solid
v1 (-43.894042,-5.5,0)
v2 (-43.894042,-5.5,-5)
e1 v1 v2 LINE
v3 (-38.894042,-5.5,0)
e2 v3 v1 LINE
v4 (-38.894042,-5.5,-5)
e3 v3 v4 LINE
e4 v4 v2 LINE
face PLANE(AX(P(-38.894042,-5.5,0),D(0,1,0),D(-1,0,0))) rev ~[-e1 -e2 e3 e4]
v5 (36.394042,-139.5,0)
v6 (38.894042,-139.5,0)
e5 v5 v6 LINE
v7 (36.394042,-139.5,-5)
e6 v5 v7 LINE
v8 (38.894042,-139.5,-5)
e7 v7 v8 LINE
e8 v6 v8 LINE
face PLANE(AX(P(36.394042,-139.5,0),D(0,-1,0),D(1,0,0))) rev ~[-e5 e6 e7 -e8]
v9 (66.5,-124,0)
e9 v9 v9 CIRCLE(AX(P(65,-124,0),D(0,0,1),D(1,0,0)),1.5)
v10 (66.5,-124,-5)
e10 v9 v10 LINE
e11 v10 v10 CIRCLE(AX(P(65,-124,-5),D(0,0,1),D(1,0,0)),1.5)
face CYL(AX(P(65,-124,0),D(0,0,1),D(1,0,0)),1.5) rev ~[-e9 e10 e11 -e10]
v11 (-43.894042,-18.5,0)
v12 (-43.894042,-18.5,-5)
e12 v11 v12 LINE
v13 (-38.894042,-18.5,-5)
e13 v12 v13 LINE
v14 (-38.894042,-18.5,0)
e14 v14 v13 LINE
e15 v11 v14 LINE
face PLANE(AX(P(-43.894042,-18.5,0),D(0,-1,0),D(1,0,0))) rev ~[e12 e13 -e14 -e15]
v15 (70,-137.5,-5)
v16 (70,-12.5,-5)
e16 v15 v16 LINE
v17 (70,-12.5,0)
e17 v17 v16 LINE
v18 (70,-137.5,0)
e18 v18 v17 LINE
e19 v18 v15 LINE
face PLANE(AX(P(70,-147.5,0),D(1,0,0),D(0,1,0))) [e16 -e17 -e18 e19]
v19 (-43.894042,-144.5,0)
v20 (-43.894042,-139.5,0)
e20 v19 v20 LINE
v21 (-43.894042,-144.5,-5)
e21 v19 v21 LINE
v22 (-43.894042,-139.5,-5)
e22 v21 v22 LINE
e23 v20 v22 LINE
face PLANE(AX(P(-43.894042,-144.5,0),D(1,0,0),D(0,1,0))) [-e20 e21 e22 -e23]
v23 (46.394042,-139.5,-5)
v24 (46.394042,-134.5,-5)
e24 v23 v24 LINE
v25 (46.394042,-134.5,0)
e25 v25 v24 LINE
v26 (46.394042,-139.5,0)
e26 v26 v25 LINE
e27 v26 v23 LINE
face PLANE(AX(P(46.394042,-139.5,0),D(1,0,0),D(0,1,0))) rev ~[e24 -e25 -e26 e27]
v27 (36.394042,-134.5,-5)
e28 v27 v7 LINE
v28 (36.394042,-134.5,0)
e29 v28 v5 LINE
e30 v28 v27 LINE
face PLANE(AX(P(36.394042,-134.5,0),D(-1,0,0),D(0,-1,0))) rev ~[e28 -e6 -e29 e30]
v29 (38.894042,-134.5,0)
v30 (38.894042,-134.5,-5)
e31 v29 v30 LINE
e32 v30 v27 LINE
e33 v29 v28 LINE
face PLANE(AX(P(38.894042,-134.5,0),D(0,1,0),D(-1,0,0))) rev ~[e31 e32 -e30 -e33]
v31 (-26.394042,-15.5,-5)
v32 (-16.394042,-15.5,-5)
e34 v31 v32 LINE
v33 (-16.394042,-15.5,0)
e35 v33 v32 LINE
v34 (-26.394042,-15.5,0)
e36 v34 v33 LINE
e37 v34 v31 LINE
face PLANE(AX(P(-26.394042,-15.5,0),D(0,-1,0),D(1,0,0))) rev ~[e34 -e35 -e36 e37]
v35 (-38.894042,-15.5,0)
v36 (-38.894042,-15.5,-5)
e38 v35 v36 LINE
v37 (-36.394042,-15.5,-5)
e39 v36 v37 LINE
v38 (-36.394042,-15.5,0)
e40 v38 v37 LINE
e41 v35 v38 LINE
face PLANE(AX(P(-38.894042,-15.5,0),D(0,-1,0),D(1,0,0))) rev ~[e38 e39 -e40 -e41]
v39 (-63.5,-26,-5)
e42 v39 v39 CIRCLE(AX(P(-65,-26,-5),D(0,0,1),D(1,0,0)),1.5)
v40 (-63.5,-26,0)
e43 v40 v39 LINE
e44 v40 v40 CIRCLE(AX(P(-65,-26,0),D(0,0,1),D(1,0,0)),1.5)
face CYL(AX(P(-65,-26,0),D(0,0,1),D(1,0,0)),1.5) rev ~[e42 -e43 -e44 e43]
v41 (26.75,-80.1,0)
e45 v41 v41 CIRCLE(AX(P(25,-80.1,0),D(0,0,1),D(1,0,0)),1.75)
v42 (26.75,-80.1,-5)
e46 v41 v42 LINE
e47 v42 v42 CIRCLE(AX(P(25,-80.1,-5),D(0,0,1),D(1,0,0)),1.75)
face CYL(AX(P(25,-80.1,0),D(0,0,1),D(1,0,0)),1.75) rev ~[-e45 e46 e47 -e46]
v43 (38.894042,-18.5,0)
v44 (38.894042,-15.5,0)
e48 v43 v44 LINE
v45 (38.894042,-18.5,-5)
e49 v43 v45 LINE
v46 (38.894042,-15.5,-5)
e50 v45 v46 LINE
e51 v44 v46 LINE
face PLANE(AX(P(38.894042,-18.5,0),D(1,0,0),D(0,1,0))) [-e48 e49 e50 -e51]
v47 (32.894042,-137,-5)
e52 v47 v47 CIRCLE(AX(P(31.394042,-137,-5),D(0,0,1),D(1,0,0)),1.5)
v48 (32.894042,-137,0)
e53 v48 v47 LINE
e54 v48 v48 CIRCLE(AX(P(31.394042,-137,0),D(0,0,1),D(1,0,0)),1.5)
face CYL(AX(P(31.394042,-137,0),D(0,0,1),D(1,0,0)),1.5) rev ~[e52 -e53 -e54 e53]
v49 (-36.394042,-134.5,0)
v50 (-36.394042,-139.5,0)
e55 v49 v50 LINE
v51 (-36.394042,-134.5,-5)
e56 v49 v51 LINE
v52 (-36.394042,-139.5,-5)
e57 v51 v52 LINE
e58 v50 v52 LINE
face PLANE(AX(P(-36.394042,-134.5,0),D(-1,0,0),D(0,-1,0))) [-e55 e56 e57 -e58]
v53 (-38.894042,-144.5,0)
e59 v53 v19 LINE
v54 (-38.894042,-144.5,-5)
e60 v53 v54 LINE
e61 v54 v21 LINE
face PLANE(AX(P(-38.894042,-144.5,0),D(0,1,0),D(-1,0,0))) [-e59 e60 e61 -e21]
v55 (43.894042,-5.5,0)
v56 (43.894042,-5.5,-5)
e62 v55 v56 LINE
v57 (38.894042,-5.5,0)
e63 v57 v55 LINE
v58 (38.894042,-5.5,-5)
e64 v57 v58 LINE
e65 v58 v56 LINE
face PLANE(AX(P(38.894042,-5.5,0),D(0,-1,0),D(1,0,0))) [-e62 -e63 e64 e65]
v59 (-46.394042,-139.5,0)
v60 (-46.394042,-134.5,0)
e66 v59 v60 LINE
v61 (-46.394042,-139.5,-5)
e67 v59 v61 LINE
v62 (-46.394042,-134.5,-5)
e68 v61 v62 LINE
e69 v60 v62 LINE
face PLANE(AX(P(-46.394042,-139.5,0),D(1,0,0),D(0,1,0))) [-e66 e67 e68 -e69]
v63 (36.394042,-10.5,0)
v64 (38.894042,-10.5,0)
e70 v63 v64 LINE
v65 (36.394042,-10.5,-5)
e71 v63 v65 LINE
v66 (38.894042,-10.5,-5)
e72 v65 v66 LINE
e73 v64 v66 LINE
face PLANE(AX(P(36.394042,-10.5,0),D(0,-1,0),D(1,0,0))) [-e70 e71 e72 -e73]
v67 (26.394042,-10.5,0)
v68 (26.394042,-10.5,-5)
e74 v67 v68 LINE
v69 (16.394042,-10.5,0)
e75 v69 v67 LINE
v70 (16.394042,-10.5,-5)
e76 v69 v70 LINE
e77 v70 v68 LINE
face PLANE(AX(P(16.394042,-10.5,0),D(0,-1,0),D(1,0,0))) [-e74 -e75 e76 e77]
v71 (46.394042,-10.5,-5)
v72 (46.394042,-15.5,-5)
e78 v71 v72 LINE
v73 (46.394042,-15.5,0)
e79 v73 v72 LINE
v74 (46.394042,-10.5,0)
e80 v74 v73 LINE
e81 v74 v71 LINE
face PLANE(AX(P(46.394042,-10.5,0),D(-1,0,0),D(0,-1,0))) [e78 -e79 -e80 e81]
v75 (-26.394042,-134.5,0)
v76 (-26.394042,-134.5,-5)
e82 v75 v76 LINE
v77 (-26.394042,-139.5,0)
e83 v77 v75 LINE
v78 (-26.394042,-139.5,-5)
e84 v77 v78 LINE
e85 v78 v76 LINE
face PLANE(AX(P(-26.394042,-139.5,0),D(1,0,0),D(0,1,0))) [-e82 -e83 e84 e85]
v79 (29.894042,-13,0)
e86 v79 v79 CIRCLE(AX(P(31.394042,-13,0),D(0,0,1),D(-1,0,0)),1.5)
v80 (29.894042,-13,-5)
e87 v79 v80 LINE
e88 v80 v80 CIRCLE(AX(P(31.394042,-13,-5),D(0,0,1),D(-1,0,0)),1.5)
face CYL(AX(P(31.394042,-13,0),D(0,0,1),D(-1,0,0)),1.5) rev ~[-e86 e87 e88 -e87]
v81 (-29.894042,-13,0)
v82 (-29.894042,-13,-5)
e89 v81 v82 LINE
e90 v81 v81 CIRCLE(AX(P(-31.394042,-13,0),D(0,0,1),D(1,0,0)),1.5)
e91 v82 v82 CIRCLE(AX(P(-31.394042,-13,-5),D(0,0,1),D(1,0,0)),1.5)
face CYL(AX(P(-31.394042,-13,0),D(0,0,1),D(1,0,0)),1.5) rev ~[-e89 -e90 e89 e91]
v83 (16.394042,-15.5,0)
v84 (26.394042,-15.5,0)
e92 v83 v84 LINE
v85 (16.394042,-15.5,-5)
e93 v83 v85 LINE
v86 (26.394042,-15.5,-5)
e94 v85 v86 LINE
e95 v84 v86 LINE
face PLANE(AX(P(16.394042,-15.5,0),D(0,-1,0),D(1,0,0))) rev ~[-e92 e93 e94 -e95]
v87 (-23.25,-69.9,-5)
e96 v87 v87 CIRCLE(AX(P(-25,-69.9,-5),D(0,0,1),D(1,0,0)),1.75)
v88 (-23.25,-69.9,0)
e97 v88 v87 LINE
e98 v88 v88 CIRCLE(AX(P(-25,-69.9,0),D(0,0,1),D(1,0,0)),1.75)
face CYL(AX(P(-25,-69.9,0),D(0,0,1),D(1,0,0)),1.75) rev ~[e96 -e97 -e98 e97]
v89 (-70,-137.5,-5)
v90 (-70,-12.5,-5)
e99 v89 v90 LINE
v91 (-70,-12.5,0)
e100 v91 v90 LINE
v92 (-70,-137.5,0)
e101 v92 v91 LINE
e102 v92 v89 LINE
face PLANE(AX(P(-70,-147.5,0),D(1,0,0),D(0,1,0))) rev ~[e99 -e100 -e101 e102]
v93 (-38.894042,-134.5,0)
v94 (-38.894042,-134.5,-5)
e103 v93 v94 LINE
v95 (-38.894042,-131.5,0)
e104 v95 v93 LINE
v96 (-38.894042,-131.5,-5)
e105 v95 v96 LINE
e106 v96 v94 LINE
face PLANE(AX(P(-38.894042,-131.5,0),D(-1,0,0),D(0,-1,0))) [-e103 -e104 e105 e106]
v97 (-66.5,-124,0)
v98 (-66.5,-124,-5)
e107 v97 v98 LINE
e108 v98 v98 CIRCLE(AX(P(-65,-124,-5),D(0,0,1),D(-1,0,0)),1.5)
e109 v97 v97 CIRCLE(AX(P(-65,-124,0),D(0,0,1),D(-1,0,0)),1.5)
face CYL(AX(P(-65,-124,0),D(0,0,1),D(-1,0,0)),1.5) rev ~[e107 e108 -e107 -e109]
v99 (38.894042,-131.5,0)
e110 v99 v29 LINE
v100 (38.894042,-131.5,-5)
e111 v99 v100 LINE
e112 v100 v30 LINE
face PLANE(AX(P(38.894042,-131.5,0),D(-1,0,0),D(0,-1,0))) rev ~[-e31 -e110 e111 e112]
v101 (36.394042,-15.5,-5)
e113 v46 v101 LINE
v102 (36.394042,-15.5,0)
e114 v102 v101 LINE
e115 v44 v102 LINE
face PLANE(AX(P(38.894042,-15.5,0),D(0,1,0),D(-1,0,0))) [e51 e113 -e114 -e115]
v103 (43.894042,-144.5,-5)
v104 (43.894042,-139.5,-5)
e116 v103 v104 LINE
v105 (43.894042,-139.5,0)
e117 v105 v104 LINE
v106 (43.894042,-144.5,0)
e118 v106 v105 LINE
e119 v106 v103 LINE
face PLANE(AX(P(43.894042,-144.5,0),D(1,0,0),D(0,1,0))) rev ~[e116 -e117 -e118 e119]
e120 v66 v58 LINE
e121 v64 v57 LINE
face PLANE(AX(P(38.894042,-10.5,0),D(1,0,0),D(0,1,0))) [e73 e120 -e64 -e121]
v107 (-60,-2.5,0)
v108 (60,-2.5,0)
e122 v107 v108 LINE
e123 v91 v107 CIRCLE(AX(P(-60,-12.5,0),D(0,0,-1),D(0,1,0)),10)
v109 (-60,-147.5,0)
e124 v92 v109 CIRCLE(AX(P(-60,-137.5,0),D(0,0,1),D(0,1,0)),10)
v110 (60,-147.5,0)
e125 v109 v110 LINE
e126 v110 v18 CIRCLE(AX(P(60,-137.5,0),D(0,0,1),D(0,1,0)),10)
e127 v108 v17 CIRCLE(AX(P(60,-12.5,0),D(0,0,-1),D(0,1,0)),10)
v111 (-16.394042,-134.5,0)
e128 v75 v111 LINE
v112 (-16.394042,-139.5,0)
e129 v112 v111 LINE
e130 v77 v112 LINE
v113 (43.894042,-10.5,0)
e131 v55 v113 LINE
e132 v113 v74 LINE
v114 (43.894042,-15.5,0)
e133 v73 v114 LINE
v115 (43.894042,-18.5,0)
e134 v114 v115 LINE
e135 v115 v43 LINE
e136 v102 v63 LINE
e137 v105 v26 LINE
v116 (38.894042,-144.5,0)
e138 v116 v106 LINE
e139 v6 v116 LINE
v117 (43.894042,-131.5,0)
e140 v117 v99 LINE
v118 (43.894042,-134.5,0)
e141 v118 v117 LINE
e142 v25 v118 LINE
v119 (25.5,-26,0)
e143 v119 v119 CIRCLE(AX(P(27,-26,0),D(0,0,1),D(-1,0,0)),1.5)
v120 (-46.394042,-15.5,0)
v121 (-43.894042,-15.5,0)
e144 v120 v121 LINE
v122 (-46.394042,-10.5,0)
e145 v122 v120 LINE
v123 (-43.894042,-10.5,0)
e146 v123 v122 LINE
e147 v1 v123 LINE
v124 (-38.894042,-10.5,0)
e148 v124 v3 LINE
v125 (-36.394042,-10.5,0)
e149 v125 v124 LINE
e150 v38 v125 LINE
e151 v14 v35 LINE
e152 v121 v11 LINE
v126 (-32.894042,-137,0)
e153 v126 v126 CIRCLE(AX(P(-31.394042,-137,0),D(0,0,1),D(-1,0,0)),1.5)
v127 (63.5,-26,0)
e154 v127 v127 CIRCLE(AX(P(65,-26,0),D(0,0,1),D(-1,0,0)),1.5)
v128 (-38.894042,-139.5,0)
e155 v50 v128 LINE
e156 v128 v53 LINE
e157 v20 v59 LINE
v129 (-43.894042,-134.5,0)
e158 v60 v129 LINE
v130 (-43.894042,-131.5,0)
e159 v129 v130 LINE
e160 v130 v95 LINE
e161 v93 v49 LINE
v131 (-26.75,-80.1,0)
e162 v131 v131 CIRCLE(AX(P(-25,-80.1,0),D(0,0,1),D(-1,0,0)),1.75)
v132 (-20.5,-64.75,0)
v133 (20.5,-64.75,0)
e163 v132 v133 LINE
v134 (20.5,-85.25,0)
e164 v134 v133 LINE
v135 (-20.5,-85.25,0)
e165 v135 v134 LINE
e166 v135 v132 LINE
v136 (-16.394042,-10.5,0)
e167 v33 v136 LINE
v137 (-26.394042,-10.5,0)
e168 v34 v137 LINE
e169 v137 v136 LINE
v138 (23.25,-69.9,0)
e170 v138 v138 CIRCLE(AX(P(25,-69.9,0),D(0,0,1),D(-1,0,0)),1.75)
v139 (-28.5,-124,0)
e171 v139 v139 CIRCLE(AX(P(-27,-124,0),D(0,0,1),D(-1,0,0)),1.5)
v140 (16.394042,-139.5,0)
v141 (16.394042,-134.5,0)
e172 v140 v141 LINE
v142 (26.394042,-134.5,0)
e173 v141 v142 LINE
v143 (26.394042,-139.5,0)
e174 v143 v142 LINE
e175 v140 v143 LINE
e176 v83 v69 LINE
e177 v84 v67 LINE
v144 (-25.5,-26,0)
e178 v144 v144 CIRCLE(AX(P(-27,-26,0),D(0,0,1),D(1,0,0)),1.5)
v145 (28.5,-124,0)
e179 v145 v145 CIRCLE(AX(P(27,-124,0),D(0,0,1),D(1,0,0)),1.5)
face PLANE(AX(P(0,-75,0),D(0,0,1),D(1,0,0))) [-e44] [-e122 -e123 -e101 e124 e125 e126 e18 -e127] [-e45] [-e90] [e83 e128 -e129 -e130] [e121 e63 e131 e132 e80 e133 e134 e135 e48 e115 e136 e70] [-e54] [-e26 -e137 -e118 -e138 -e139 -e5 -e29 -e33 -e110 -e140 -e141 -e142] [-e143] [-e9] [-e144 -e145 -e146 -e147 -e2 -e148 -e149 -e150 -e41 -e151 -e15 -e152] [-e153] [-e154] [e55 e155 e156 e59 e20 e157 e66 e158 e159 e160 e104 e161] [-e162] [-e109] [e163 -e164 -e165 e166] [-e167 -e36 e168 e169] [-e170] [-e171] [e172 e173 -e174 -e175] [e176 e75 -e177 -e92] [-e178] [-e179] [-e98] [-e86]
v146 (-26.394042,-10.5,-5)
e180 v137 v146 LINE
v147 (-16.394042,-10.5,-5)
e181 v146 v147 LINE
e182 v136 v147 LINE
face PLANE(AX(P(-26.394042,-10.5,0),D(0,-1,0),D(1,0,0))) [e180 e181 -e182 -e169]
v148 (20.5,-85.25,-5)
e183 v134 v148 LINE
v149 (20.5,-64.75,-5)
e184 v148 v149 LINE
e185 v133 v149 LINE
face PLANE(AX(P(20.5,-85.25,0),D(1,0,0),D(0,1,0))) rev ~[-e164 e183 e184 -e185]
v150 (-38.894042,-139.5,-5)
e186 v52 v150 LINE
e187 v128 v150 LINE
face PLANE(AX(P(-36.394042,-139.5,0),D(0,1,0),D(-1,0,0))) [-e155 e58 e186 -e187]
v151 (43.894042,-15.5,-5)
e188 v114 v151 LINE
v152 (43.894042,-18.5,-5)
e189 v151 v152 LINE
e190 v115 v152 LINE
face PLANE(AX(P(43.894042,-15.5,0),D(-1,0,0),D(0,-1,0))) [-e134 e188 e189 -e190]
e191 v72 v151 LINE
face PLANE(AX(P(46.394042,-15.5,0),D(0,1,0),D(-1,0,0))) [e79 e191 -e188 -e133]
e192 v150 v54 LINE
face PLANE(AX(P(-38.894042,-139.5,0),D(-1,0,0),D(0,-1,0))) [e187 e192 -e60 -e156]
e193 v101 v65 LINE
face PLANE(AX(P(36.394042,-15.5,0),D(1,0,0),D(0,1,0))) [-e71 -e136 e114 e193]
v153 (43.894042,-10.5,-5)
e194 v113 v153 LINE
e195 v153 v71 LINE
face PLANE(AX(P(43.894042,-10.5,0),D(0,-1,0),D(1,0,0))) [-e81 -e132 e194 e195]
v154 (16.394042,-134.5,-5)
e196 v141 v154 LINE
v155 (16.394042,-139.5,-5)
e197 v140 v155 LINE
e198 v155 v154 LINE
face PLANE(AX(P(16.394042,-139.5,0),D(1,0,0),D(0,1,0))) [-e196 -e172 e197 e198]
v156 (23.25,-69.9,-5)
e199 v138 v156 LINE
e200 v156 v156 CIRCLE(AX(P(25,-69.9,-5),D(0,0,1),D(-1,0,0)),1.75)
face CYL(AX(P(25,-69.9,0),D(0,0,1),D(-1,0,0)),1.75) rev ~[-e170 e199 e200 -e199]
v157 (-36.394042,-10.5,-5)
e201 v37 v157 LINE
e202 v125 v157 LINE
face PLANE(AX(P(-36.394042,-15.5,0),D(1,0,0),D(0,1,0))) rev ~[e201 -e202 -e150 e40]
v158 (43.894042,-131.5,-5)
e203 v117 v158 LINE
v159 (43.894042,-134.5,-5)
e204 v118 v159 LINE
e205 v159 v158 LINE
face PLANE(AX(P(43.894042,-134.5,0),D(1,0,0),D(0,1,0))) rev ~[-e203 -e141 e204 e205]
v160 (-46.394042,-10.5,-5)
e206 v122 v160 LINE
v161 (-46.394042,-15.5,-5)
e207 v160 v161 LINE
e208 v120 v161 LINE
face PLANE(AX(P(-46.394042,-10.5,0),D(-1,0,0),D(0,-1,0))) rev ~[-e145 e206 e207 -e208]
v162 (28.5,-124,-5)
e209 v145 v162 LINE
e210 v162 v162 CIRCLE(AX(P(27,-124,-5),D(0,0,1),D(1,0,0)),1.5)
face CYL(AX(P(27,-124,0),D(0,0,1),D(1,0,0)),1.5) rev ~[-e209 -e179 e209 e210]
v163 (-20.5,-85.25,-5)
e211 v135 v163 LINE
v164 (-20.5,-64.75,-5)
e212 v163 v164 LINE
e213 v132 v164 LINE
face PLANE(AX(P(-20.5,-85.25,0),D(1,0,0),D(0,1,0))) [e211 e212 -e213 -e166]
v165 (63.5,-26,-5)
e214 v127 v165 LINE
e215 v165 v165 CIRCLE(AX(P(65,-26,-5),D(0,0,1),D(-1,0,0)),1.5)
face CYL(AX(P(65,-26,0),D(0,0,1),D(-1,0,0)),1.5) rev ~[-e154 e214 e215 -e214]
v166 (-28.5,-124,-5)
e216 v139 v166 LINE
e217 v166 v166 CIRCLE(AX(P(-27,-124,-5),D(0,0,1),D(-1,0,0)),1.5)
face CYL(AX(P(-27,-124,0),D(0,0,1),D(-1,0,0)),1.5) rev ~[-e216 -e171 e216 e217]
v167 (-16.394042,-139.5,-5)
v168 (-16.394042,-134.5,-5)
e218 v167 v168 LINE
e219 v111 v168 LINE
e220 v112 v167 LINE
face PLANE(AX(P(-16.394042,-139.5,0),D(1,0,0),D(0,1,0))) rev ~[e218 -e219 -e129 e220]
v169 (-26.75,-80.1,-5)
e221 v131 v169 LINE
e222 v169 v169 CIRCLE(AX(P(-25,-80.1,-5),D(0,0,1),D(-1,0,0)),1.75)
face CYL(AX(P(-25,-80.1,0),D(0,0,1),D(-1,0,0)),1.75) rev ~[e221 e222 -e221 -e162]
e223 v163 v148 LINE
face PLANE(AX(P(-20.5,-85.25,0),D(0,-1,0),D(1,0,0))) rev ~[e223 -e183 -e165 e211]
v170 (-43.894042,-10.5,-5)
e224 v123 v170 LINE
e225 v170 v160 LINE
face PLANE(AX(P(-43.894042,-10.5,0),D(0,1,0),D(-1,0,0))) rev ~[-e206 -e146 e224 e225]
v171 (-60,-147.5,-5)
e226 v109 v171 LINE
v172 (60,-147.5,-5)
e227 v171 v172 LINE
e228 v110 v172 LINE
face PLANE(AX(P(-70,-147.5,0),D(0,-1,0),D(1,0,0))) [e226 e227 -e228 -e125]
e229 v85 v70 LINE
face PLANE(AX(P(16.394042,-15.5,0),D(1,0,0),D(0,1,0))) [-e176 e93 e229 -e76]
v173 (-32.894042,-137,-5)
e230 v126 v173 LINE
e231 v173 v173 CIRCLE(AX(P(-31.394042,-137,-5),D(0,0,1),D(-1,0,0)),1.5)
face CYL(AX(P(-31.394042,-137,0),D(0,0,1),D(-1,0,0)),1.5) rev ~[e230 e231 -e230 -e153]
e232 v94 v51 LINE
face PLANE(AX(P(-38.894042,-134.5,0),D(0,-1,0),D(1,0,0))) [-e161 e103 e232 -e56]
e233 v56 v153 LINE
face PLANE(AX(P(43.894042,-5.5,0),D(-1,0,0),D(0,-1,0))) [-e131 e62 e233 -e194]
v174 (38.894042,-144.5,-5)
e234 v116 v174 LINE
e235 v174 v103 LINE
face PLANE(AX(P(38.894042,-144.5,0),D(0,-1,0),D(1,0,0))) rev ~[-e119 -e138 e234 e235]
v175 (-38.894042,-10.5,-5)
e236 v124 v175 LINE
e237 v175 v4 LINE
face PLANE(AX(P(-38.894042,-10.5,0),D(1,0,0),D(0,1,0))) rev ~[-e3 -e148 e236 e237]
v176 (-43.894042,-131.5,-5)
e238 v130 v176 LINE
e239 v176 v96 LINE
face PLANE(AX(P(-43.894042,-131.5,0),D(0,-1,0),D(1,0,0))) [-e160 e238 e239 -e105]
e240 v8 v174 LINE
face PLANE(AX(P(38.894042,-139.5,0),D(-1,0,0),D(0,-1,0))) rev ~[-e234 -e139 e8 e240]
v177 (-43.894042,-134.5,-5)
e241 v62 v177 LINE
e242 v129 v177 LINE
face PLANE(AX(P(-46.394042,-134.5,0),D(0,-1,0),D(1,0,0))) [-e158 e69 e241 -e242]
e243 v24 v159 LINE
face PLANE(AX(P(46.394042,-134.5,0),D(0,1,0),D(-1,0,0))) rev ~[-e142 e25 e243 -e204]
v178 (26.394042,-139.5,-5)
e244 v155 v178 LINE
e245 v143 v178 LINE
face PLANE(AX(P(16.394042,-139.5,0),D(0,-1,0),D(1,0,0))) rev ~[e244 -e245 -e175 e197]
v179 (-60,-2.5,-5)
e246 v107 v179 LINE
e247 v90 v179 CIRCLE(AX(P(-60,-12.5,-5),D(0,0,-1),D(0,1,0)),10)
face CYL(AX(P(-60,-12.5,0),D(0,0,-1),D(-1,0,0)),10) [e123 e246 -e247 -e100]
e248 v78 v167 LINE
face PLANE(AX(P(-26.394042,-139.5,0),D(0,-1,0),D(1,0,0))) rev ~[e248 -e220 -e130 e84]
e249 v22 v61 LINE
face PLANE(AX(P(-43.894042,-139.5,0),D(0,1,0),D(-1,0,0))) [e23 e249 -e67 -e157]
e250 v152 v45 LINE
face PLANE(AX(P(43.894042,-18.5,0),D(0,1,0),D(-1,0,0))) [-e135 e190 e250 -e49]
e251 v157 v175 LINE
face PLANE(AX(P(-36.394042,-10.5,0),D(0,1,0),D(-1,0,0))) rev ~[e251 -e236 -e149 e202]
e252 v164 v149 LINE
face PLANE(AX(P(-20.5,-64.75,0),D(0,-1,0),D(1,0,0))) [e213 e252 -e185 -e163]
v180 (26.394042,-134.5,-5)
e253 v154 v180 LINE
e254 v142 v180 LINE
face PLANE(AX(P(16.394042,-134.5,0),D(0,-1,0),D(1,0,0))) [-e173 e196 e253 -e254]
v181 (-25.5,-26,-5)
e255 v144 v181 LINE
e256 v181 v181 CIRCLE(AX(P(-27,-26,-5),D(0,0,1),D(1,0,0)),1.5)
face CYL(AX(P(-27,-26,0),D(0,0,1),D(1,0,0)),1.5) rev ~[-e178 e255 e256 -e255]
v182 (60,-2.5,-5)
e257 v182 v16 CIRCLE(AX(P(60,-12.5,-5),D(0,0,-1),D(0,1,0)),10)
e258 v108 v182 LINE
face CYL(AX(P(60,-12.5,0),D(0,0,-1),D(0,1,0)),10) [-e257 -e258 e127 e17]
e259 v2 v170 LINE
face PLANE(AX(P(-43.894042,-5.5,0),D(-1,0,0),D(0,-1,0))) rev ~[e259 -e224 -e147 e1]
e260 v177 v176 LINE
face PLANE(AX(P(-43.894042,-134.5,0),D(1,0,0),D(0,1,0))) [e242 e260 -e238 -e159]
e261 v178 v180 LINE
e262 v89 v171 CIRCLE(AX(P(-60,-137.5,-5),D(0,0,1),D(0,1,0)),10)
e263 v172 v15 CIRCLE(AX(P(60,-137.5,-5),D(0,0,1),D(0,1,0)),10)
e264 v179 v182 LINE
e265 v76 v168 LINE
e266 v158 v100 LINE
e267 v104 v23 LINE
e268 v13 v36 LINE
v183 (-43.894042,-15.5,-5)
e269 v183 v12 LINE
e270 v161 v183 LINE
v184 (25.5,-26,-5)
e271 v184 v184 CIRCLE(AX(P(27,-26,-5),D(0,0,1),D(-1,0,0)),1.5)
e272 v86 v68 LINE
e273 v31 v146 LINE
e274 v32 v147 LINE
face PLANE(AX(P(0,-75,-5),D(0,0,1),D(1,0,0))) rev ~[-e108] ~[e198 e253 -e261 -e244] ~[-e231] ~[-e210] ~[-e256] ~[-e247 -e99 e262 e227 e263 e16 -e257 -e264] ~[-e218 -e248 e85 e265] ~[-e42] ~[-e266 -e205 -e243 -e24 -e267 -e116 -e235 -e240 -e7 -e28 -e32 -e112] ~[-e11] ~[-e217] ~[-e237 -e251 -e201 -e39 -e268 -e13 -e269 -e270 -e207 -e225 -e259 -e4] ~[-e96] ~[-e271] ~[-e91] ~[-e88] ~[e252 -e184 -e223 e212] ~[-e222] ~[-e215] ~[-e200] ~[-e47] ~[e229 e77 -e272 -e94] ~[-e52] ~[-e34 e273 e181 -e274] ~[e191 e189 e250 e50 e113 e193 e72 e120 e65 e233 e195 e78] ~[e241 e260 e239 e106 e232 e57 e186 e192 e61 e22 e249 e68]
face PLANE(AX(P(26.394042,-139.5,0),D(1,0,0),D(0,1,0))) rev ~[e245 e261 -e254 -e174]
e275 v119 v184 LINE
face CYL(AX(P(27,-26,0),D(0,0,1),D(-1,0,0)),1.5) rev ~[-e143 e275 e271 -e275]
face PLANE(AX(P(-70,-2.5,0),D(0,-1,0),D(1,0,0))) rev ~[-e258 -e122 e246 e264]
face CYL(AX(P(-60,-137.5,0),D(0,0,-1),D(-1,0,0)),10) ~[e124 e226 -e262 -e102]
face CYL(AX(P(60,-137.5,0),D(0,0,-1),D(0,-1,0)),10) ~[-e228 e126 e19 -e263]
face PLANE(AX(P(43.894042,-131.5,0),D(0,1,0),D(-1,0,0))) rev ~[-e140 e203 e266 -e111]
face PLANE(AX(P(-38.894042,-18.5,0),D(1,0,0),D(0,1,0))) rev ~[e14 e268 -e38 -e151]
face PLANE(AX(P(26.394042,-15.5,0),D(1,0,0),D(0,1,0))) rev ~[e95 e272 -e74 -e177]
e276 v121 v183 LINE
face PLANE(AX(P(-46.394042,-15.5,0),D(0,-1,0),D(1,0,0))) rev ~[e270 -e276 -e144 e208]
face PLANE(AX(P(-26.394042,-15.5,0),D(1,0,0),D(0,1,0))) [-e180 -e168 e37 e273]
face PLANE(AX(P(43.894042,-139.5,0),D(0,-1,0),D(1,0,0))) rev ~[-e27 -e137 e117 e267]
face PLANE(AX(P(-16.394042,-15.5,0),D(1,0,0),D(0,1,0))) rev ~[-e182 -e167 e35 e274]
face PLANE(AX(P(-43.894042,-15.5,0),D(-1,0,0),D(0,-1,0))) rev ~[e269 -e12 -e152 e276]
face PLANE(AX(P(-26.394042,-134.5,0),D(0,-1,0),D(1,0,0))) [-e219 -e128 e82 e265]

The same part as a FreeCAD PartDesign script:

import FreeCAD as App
import Part
import Sketcher
from FreeCAD import Vector


def edges_at(feature, points):
    """Names of the edges that pass closest to the given points."""
    edges = feature.Shape.Edges
    near = lambda p: min(range(len(edges)), key=lambda i: edges[i].distToShape(Part.Vertex(*p))[0])
    return sorted({f"Edge{near(p) + 1}" for p in points})

doc = App.newDocument("Part")
body = doc.addObject("PartDesign::Body", "Body")

# Sketch on XY plane
sketch1 = body.newObject("Sketcher::SketchObject", "Sketch")
sketch1.AttachmentSupport = (doc.getObject("XY_Plane"), [""])
sketch1.MapMode = "FlatFace"
sketch1.addGeometry(Part.LineSegment(Vector(-70, -2, 0), Vector(-70, -148, 0)), False)
sketch1.addGeometry(Part.LineSegment(Vector(-70, -148, 0), Vector(70, -148, 0)), False)
sketch1.addGeometry(Part.LineSegment(Vector(70, -148, 0), Vector(70, -2, 0)), False)
sketch1.addGeometry(Part.LineSegment(Vector(70, -2, 0), Vector(-70, -2, 0)), False)
sketch1.addConstraint(Sketcher.Constraint("Coincident", 0, 2, 1, 1))
sketch1.addConstraint(Sketcher.Constraint("Coincident", 1, 2, 2, 1))
sketch1.addConstraint(Sketcher.Constraint("Coincident", 2, 2, 3, 1))
sketch1.addConstraint(Sketcher.Constraint("Coincident", 3, 2, 0, 1))
sketch1.addConstraint(Sketcher.Constraint("Vertical", 0))
sketch1.addConstraint(Sketcher.Constraint("Horizontal", 1))
sketch1.addConstraint(Sketcher.Constraint("Vertical", 2))
sketch1.addConstraint(Sketcher.Constraint("Horizontal", 3))
sketch1.addConstraint(Sketcher.Constraint("DistanceX", 1, 1, 1, 2, 140.0))
sketch1.addConstraint(Sketcher.Constraint("DistanceY", 0, 2, 0, 1, 145.0))
sketch1.addConstraint(Sketcher.Constraint("DistanceX", 0, 2, -1, 1, 70.0))
sketch1.addConstraint(Sketcher.Constraint("DistanceY", 0, 2, -1, 1, 147.5))
pad1 = body.newObject("PartDesign::Pad", "Pad")
pad1.Profile = sketch1
pad1.Length = 5
pad1.Reversed = True

# Sketch on XY plane
sketch2 = body.newObject("Sketcher::SketchObject", "Sketch001")
sketch2.AttachmentSupport = (doc.getObject("XY_Plane"), [""])
sketch2.MapMode = "FlatFace"
sketch2.addGeometry(Part.LineSegment(Vector(43.9, -134.5, 0), Vector(43.9, -131.5, 0)), False)
sketch2.addGeometry(Part.LineSegment(Vector(43.9, -131.5, 0), Vector(38.9, -131.5, 0)), False)
sketch2.addGeometry(Part.LineSegment(Vector(38.9, -131.5, 0), Vector(38.9, -134.5, 0)), False)
sketch2.addGeometry(Part.LineSegment(Vector(38.9, -134.5, 0), Vector(36.4, -134.5, 0)), False)
sketch2.addGeometry(Part.LineSegment(Vector(36.4, -134.5, 0), Vector(36.4, -139.5, 0)), False)
sketch2.addGeometry(Part.LineSegment(Vector(36.4, -139.5, 0), Vector(38.9, -139.5, 0)), False)
sketch2.addGeometry(Part.LineSegment(Vector(38.9, -139.5, 0), Vector(38.9, -144.5, 0)), False)
sketch2.addGeometry(Part.LineSegment(Vector(38.9, -144.5, 0), Vector(43.9, -144.5, 0)), False)
sketch2.addGeometry(Part.LineSegment(Vector(43.9, -144.5, 0), Vector(43.9, -139.5, 0)), False)
sketch2.addGeometry(Part.LineSegment(Vector(43.9, -139.5, 0), Vector(46.4, -139.5, 0)), False)
sketch2.addGeometry(Part.LineSegment(Vector(46.4, -139.5, 0), Vector(46.4, -134.5, 0)), False)
sketch2.addGeometry(Part.LineSegment(Vector(46.4, -134.5, 0), Vector(43.9, -134.5, 0)), False)
sketch2.addGeometry(Part.LineSegment(Vector(16.4, -134.5, 0), Vector(16.4, -139.5, 0)), False)
sketch2.addGeometry(Part.LineSegment(Vector(16.4, -139.5, 0), Vector(26.4, -139.5, 0)), False)
sketch2.addGeometry(Part.LineSegment(Vector(26.4, -139.5, 0), Vector(26.4, -134.5, 0)), False)
sketch2.addGeometry(Part.LineSegment(Vector(26.4, -134.5, 0), Vector(16.4, -134.5, 0)), False)
sketch2.addGeometry(Part.LineSegment(Vector(-26.4, -134.5, 0), Vector(-26.4, -139.5, 0)), False)
sketch2.addGeometry(Part.LineSegment(Vector(-26.4, -139.5, 0), Vector(-16.4, -139.5, 0)), False)
sketch2.addGeometry(Part.LineSegment(Vector(-16.4, -139.5, 0), Vector(-16.4, -134.5, 0)), False)
sketch2.addGeometry(Part.LineSegment(Vector(-16.4, -134.5, 0), Vector(-26.4, -134.5, 0)), False)
sketch2.addGeometry(Part.LineSegment(Vector(-43.9, -134.5, 0), Vector(-46.4, -134.5, 0)), False)
sketch2.addGeometry(Part.LineSegment(Vector(-46.4, -134.5, 0), Vector(-46.4, -139.5, 0)), False)
sketch2.addGeometry(Part.LineSegment(Vector(-46.4, -139.5, 0), Vector(-43.9, -139.5, 0)), False)
sketch2.addGeometry(Part.LineSegment(Vector(-43.9, -139.5, 0), Vector(-43.9, -144.5, 0)), False)
sketch2.addGeometry(Part.LineSegment(Vector(-43.9, -144.5, 0), Vector(-38.9, -144.5, 0)), False)
sketch2.addGeometry(Part.LineSegment(Vector(-38.9, -144.5, 0), Vector(-38.9, -139.5, 0)), False)
sketch2.addGeometry(Part.LineSegment(Vector(-38.9, -139.5, 0), Vector(-36.4, -139.5, 0)), False)
sketch2.addGeometry(Part.LineSegment(Vector(-36.4, -139.5, 0), Vector(-36.4, -134.5, 0)), False)
sketch2.addGeometry(Part.LineSegment(Vector(-36.4, -134.5, 0), Vector(-38.9, -134.5, 0)), False)
sketch2.addGeometry(Part.LineSegment(Vector(-38.9, -134.5, 0), Vector(-38.9, -131.5, 0)), False)
sketch2.addGeometry(Part.LineSegment(Vector(-38.9, -131.5, 0), Vector(-43.9, -131.5, 0)), False)
sketch2.addGeometry(Part.LineSegment(Vector(-43.9, -131.5, 0), Vector(-43.9, -134.5, 0)), False)
sketch2.addGeometry(Part.LineSegment(Vector(-43.9, -15.5, 0), Vector(-43.9, -18.5, 0)), False)
sketch2.addGeometry(Part.LineSegment(Vector(-43.9, -18.5, 0), Vector(-38.9, -18.5, 0)), False)
sketch2.addGeometry(Part.LineSegment(Vector(-38.9, -18.5, 0), Vector(-38.9, -15.5, 0)), False)
sketch2.addGeometry(Part.LineSegment(Vector(-38.9, -15.5, 0), Vector(-36.4, -15.5, 0)), False)
sketch2.addGeometry(Part.LineSegment(Vector(-36.4, -15.5, 0), Vector(-36.4, -10.5, 0)), False)
sketch2.addGeometry(Part.LineSegment(Vector(-36.4, -10.5, 0), Vector(-38.9, -10.5, 0)), False)
sketch2.addGeometry(Part.LineSegment(Vector(-38.9, -10.5, 0), Vector(-38.9, -5.5, 0)), False)
sketch2.addGeometry(Part.LineSegment(Vector(-38.9, -5.5, 0), Vector(-43.9, -5.5, 0)), False)
sketch2.addGeometry(Part.LineSegment(Vector(-43.9, -5.5, 0), Vector(-43.9, -10.5, 0)), False)
sketch2.addGeometry(Part.LineSegment(Vector(-43.9, -10.5, 0), Vector(-46.4, -10.5, 0)), False)
sketch2.addGeometry(Part.LineSegment(Vector(-46.4, -10.5, 0), Vector(-46.4, -15.5, 0)), False)
sketch2.addGeometry(Part.LineSegment(Vector(-46.4, -15.5, 0), Vector(-43.9, -15.5, 0)), False)
sketch2.addGeometry(Part.LineSegment(Vector(-26.4, -10.5, 0), Vector(-26.4, -15.5, 0)), False)
sketch2.addGeometry(Part.LineSegment(Vector(-26.4, -15.5, 0), Vector(-16.4, -15.5, 0)), False)
sketch2.addGeometry(Part.LineSegment(Vector(-16.4, -15.5, 0), Vector(-16.4, -10.5, 0)), False)
sketch2.addGeometry(Part.LineSegment(Vector(-16.4, -10.5, 0), Vector(-26.4, -10.5, 0)), False)
sketch2.addGeometry(Part.LineSegment(Vector(16.4, -10.5, 0), Vector(16.4, -15.5, 0)), False)
sketch2.addGeometry(Part.LineSegment(Vector(16.4, -15.5, 0), Vector(26.4, -15.5, 0)), False)
sketch2.addGeometry(Part.LineSegment(Vector(26.4, -15.5, 0), Vector(26.4, -10.5, 0)), False)
sketch2.addGeometry(Part.LineSegment(Vector(26.4, -10.5, 0), Vector(16.4, -10.5, 0)), False)
sketch2.addGeometry(Part.LineSegment(Vector(43.9, -15.5, 0), Vector(46.4, -15.5, 0)), False)
sketch2.addGeometry(Part.LineSegment(Vector(46.4, -15.5, 0), Vector(46.4, -10.5, 0)), False)
sketch2.addGeometry(Part.LineSegment(Vector(46.4, -10.5, 0), Vector(43.9, -10.5, 0)), False)
sketch2.addGeometry(Part.LineSegment(Vector(43.9, -10.5, 0), Vector(43.9, -5.5, 0)), False)
sketch2.addGeometry(Part.LineSegment(Vector(43.9, -5.5, 0), Vector(38.9, -5.5, 0)), False)
sketch2.addGeometry(Part.LineSegment(Vector(38.9, -5.5, 0), Vector(38.9, -10.5, 0)), False)
sketch2.addGeometry(Part.LineSegment(Vector(38.9, -10.5, 0), Vector(36.4, -10.5, 0)), False)
sketch2.addGeometry(Part.LineSegment(Vector(36.4, -10.5, 0), Vector(36.4, -15.5, 0)), False)
sketch2.addGeometry(Part.LineSegment(Vector(36.4, -15.5, 0), Vector(38.9, -15.5, 0)), False)
sketch2.addGeometry(Part.LineSegment(Vector(38.9, -15.5, 0), Vector(38.9, -18.5, 0)), False)
sketch2.addGeometry(Part.LineSegment(Vector(38.9, -18.5, 0), Vector(43.9, -18.5, 0)), False)
sketch2.addGeometry(Part.LineSegment(Vector(43.9, -18.5, 0), Vector(43.9, -15.5, 0)), False)
sketch2.addConstraint(Sketcher.Constraint("Coincident", 0, 2, 1, 1))
sketch2.addConstraint(Sketcher.Constraint("Coincident", 1, 2, 2, 1))
sketch2.addConstraint(Sketcher.Constraint("Coincident", 2, 2, 3, 1))
sketch2.addConstraint(Sketcher.Constraint("Coincident", 3, 2, 4, 1))
sketch2.addConstraint(Sketcher.Constraint("Coincident", 4, 2, 5, 1))
sketch2.addConstraint(Sketcher.Constraint("Coincident", 5, 2, 6, 1))
sketch2.addConstraint(Sketcher.Constraint("Coincident", 6, 2, 7, 1))
sketch2.addConstraint(Sketcher.Constraint("Coincident", 7, 2, 8, 1))
sketch2.addConstraint(Sketcher.Constraint("Coincident", 8, 2, 9, 1))
sketch2.addConstraint(Sketcher.Constraint("Coincident", 9, 2, 10, 1))
sketch2.addConstraint(Sketcher.Constraint("Coincident", 10, 2, 11, 1))
sketch2.addConstraint(Sketcher.Constraint("Coincident", 11, 2, 0, 1))
sketch2.addConstraint(Sketcher.Constraint("Coincident", 12, 2, 13, 1))
sketch2.addConstraint(Sketcher.Constraint("Coincident", 13, 2, 14, 1))
sketch2.addConstraint(Sketcher.Constraint("Coincident", 14, 2, 15, 1))
sketch2.addConstraint(Sketcher.Constraint("Coincident", 15, 2, 12, 1))
sketch2.addConstraint(Sketcher.Constraint("Coincident", 16, 2, 17, 1))
sketch2.addConstraint(Sketcher.Constraint("Coincident", 17, 2, 18, 1))
sketch2.addConstraint(Sketcher.Constraint("Coincident", 18, 2, 19, 1))
sketch2.addConstraint(Sketcher.Constraint("Coincident", 19, 2, 16, 1))
sketch2.addConstraint(Sketcher.Constraint("Coincident", 20, 2, 21, 1))
sketch2.addConstraint(Sketcher.Constraint("Coincident", 21, 2, 22, 1))
sketch2.addConstraint(Sketcher.Constraint("Coincident", 22, 2, 23, 1))
sketch2.addConstraint(Sketcher.Constraint("Coincident", 23, 2, 24, 1))
sketch2.addConstraint(Sketcher.Constraint("Coincident", 24, 2, 25, 1))
sketch2.addConstraint(Sketcher.Constraint("Coincident", 25, 2, 26, 1))
sketch2.addConstraint(Sketcher.Constraint("Coincident", 26, 2, 27, 1))
sketch2.addConstraint(Sketcher.Constraint("Coincident", 27, 2, 28, 1))
sketch2.addConstraint(Sketcher.Constraint("Coincident", 28, 2, 29, 1))
sketch2.addConstraint(Sketcher.Constraint("Coincident", 29, 2, 30, 1))
sketch2.addConstraint(Sketcher.Constraint("Coincident", 30, 2, 31, 1))
sketch2.addConstraint(Sketcher.Constraint("Coincident", 31, 2, 20, 1))
sketch2.addConstraint(Sketcher.Constraint("Coincident", 32, 2, 33, 1))
sketch2.addConstraint(Sketcher.Constraint("Coincident", 33, 2, 34, 1))
sketch2.addConstraint(Sketcher.Constraint("Coincident", 34, 2, 35, 1))
sketch2.addConstraint(Sketcher.Constraint("Coincident", 35, 2, 36, 1))
sketch2.addConstraint(Sketcher.Constraint("Coincident", 36, 2, 37, 1))
sketch2.addConstraint(Sketcher.Constraint("Coincident", 37, 2, 38, 1))
sketch2.addConstraint(Sketcher.Constraint("Coincident", 38, 2, 39, 1))
sketch2.addConstraint(Sketcher.Constraint("Coincident", 39, 2, 40, 1))
sketch2.addConstraint(Sketcher.Constraint("Coincident", 40, 2, 41, 1))
sketch2.addConstraint(Sketcher.Constraint("Coincident", 41, 2, 42, 1))
sketch2.addConstraint(Sketcher.Constraint("Coincident", 42, 2, 43, 1))
sketch2.addConstraint(Sketcher.Constraint("Coincident", 43, 2, 32, 1))
sketch2.addConstraint(Sketcher.Constraint("Coincident", 44, 2, 45, 1))
sketch2.addConstraint(Sketcher.Constraint("Coincident", 45, 2, 46, 1))
sketch2.addConstraint(Sketcher.Constraint("Coincident", 46, 2, 47, 1))
sketch2.addConstraint(Sketcher.Constraint("Coincident", 47, 2, 44, 1))
sketch2.addConstraint(Sketcher.Constraint("Coincident", 48, 2, 49, 1))
sketch2.addConstraint(Sketcher.Constraint("Coincident", 49, 2, 50, 1))
sketch2.addConstraint(Sketcher.Constraint("Coincident", 50, 2, 51, 1))
sketch2.addConstraint(Sketcher.Constraint("Coincident", 51, 2, 48, 1))
sketch2.addConstraint(Sketcher.Constraint("Coincident", 52, 2, 53, 1))
sketch2.addConstraint(Sketcher.Constraint("Coincident", 53, 2, 54, 1))
sketch2.addConstraint(Sketcher.Constraint("Coincident", 54, 2, 55, 1))
sketch2.addConstraint(Sketcher.Constraint("Coincident", 55, 2, 56, 1))
sketch2.addConstraint(Sketcher.Constraint("Coincident", 56, 2, 57, 1))
sketch2.addConstraint(Sketcher.Constraint("Coincident", 57, 2, 58, 1))
sketch2.addConstraint(Sketcher.Constraint("Coincident", 58, 2, 59, 1))
sketch2.addConstraint(Sketcher.Constraint("Coincident", 59, 2, 60, 1))
sketch2.addConstraint(Sketcher.Constraint("Coincident", 60, 2, 61, 1))
sketch2.addConstraint(Sketcher.Constraint("Coincident", 61, 2, 62, 1))
sketch2.addConstraint(Sketcher.Constraint("Coincident", 62, 2, 63, 1))
sketch2.addConstraint(Sketcher.Constraint("Coincident", 63, 2, 52, 1))
sketch2.addConstraint(Sketcher.Constraint("Vertical", 0))
sketch2.addConstraint(Sketcher.Constraint("Horizontal", 1))
sketch2.addConstraint(Sketcher.Constraint("Vertical", 2))
sketch2.addConstraint(Sketcher.Constraint("Horizontal", 3))
sketch2.addConstraint(Sketcher.Constraint("Vertical", 4))
sketch2.addConstraint(Sketcher.Constraint("Horizontal", 5))
sketch2.addConstraint(Sketcher.Constraint("Vertical", 6))
sketch2.addConstraint(Sketcher.Constraint("Horizontal", 7))
sketch2.addConstraint(Sketcher.Constraint("Vertical", 8))
sketch2.addConstraint(Sketcher.Constraint("Horizontal", 9))
sketch2.addConstraint(Sketcher.Constraint("Vertical", 10))
sketch2.addConstraint(Sketcher.Constraint("Horizontal", 11))
sketch2.addConstraint(Sketcher.Constraint("Vertical", 12))
sketch2.addConstraint(Sketcher.Constraint("Horizontal", 13))
sketch2.addConstraint(Sketcher.Constraint("Vertical", 14))
sketch2.addConstraint(Sketcher.Constraint("Horizontal", 15))
sketch2.addConstraint(Sketcher.Constraint("Vertical", 16))
sketch2.addConstraint(Sketcher.Constraint("Horizontal", 17))
sketch2.addConstraint(Sketcher.Constraint("Vertical", 18))
sketch2.addConstraint(Sketcher.Constraint("Horizontal", 19))
sketch2.addConstraint(Sketcher.Constraint("Horizontal", 20))
sketch2.addConstraint(Sketcher.Constraint("Vertical", 21))
sketch2.addConstraint(Sketcher.Constraint("Horizontal", 22))
sketch2.addConstraint(Sketcher.Constraint("Vertical", 23))
sketch2.addConstraint(Sketcher.Constraint("Horizontal", 24))
sketch2.addConstraint(Sketcher.Constraint("Vertical", 25))
sketch2.addConstraint(Sketcher.Constraint("Horizontal", 26))
sketch2.addConstraint(Sketcher.Constraint("Vertical", 27))
sketch2.addConstraint(Sketcher.Constraint("Horizontal", 28))
sketch2.addConstraint(Sketcher.Constraint("Vertical", 29))
sketch2.addConstraint(Sketcher.Constraint("Horizontal", 30))
sketch2.addConstraint(Sketcher.Constraint("Vertical", 31))
sketch2.addConstraint(Sketcher.Constraint("Vertical", 32))
sketch2.addConstraint(Sketcher.Constraint("Horizontal", 33))
sketch2.addConstraint(Sketcher.Constraint("Vertical", 34))
sketch2.addConstraint(Sketcher.Constraint("Horizontal", 35))
sketch2.addConstraint(Sketcher.Constraint("Vertical", 36))
sketch2.addConstraint(Sketcher.Constraint("Horizontal", 37))
sketch2.addConstraint(Sketcher.Constraint("Vertical", 38))
sketch2.addConstraint(Sketcher.Constraint("Horizontal", 39))
sketch2.addConstraint(Sketcher.Constraint("Vertical", 40))
sketch2.addConstraint(Sketcher.Constraint("Horizontal", 41))
sketch2.addConstraint(Sketcher.Constraint("Vertical", 42))
sketch2.addConstraint(Sketcher.Constraint("Horizontal", 43))
sketch2.addConstraint(Sketcher.Constraint("Vertical", 44))
sketch2.addConstraint(Sketcher.Constraint("Horizontal", 45))
sketch2.addConstraint(Sketcher.Constraint("Vertical", 46))
sketch2.addConstraint(Sketcher.Constraint("Horizontal", 47))
sketch2.addConstraint(Sketcher.Constraint("Vertical", 48))
sketch2.addConstraint(Sketcher.Constraint("Horizontal", 49))
sketch2.addConstraint(Sketcher.Constraint("Vertical", 50))
sketch2.addConstraint(Sketcher.Constraint("Horizontal", 51))
sketch2.addConstraint(Sketcher.Constraint("Horizontal", 52))
sketch2.addConstraint(Sketcher.Constraint("Vertical", 53))
sketch2.addConstraint(Sketcher.Constraint("Horizontal", 54))
sketch2.addConstraint(Sketcher.Constraint("Vertical", 55))
sketch2.addConstraint(Sketcher.Constraint("Horizontal", 56))
sketch2.addConstraint(Sketcher.Constraint("Vertical", 57))
sketch2.addConstraint(Sketcher.Constraint("Horizontal", 58))
sketch2.addConstraint(Sketcher.Constraint("Vertical", 59))
sketch2.addConstraint(Sketcher.Constraint("Horizontal", 60))
sketch2.addConstraint(Sketcher.Constraint("Vertical", 61))
sketch2.addConstraint(Sketcher.Constraint("Horizontal", 62))
sketch2.addConstraint(Sketcher.Constraint("Vertical", 63))
sketch2.addConstraint(Sketcher.Constraint("Symmetric", 13, 2, 16, 2, -2))
sketch2.addConstraint(Sketcher.Constraint("Symmetric", 15, 2, 18, 2, -2))
sketch2.addConstraint(Sketcher.Constraint("Symmetric", 10, 2, 20, 2, -2))
sketch2.addConstraint(Sketcher.Constraint("Symmetric", 8, 2, 22, 2, -2))
sketch2.addConstraint(Sketcher.Constraint("Symmetric", 6, 2, 24, 2, -2))
sketch2.addConstraint(Sketcher.Constraint("Symmetric", 4, 2, 26, 2, -2))
sketch2.addConstraint(Sketcher.Constraint("Symmetric", 2, 2, 28, 2, -2))
sketch2.addConstraint(Sketcher.Constraint("Symmetric", 0, 2, 30, 2, -2))
sketch2.addConstraint(Sketcher.Constraint("Symmetric", 45, 2, 48, 2, -2))
sketch2.addConstraint(Sketcher.Constraint("Symmetric", 47, 2, 50, 2, -2))
sketch2.addConstraint(Sketcher.Constraint("Symmetric", 42, 2, 52, 2, -2))
sketch2.addConstraint(Sketcher.Constraint("Symmetric", 40, 2, 54, 2, -2))
sketch2.addConstraint(Sketcher.Constraint("Symmetric", 38, 2, 56, 2, -2))
sketch2.addConstraint(Sketcher.Constraint("Symmetric", 36, 2, 58, 2, -2))
sketch2.addConstraint(Sketcher.Constraint("Symmetric", 34, 2, 60, 2, -2))
sketch2.addConstraint(Sketcher.Constraint("Symmetric", 32, 2, 62, 2, -2))
sketch2.addConstraint(Sketcher.Constraint("Horizontal", 5, 2, 8, 2))
sketch2.addConstraint(Sketcher.Constraint("Horizontal", 3, 2, 10, 2))
sketch2.addConstraint(Sketcher.Constraint("Horizontal", 9, 2, 12, 2))
sketch2.addConstraint(Sketcher.Constraint("Horizontal", 11, 2, 14, 2))
sketch2.addConstraint(Sketcher.Constraint("Horizontal", 37, 2, 40, 2))
sketch2.addConstraint(Sketcher.Constraint("Horizontal", 35, 2, 42, 2))
sketch2.addConstraint(Sketcher.Constraint("Horizontal", 43, 2, 44, 2))
sketch2.addConstraint(Sketcher.Constraint("Horizontal", 41, 2, 46, 2))
sketch2.addConstraint(Sketcher.Constraint("Vertical", 2, 2, 5, 2))
sketch2.addConstraint(Sketcher.Constraint("Vertical", 0, 2, 7, 2))
sketch2.addConstraint(Sketcher.Constraint("Vertical", 31, 2, 32, 2))
sketch2.addConstraint(Sketcher.Constraint("Vertical", 29, 2, 33, 2))
sketch2.addConstraint(Sketcher.Constraint("Vertical", 27, 2, 35, 2))
sketch2.addConstraint(Sketcher.Constraint("Vertical", 34, 2, 37, 2))
sketch2.addConstraint(Sketcher.Constraint("Vertical", 32, 2, 39, 2))
sketch2.addConstraint(Sketcher.Constraint("Vertical", 21, 2, 41, 2))
sketch2.addConstraint(Sketcher.Constraint("Vertical", 19, 2, 44, 2))
sketch2.addConstraint(Sketcher.Constraint("Vertical", 18, 2, 45, 2))
sketch2.addConstraint(Sketcher.Constraint("Equal", 5, 9))
sketch2.addConstraint(Sketcher.Constraint("Equal", 62, 4))
sketch2.addConstraint(Sketcher.Constraint("Equal", 4, 6))
sketch2.addConstraint(Sketcher.Constraint("Equal", 31, 32))
sketch2.addConstraint(Sketcher.Constraint("Equal", 27, 36))
sketch2.addConstraint(Sketcher.Constraint("Equal", 36, 38))
sketch2.addConstraint(Sketcher.Constraint("DistanceX", 1, 2, 1, 1, 5.0))
sketch2.addConstraint(Sketcher.Constraint("DistanceX", 13, 1, 13, 2, 10.0))
sketch2.addConstraint(Sketcher.Constraint("DistanceY", 0, 1, 0, 2, 3.0))
sketch2.addConstraint(Sketcher.Constraint("DistanceX", 3, 2, 3, 1, 2.5))
sketch2.addConstraint(Sketcher.Constraint("DistanceY", 0, 2, -1, 1, 131.5))
sketch2.addConstraint(Sketcher.Constraint("DistanceY", 32, 2, -1, 1, 18.5))
sketch2.addConstraint(Sketcher.Constraint("DistanceX", -1, 1, 0, 2, 43.894042))
sketch2.addConstraint(Sketcher.Constraint("DistanceX", -1, 1, 12, 2, 16.394042))
pocket1 = body.newObject("PartDesign::Pocket", "Pocket")
pocket1.Profile = sketch2
pocket1.Type = "ThroughAll"

# Sketch on XY plane
sketch3 = body.newObject("Sketcher::SketchObject", "Sketch002")
sketch3.AttachmentSupport = (doc.getObject("XY_Plane"), [""])
sketch3.MapMode = "FlatFace"
sketch3.addGeometry(Part.Circle(Vector(31.4, -137, 0), Vector(0, 0, 1), 1.5), False)
sketch3.addGeometry(Part.Circle(Vector(-31.4, -137, 0), Vector(0, 0, 1), 1.5), False)
sketch3.addGeometry(Part.Circle(Vector(31.4, -13, 0), Vector(0, 0, 1), 1.5), False)
sketch3.addGeometry(Part.Circle(Vector(-31.4, -13, 0), Vector(0, 0, 1), 1.5), False)
sketch3.addConstraint(Sketcher.Constraint("Equal", 0, 1))
sketch3.addConstraint(Sketcher.Constraint("Equal", 1, 2))
sketch3.addConstraint(Sketcher.Constraint("Equal", 2, 3))
sketch3.addConstraint(Sketcher.Constraint("Symmetric", 0, 3, 1, 3, -2))
sketch3.addConstraint(Sketcher.Constraint("Symmetric", 2, 3, 3, 3, -2))
sketch3.addConstraint(Sketcher.Constraint("Vertical", 0, 3, 2, 3))
sketch3.addConstraint(Sketcher.Constraint("Diameter", 0, 3.0))
sketch3.addConstraint(Sketcher.Constraint("DistanceY", 0, 3, -1, 1, 137.0))
sketch3.addConstraint(Sketcher.Constraint("DistanceY", 2, 3, -1, 1, 13.0))
sketch3.addConstraint(Sketcher.Constraint("DistanceX", -1, 1, 0, 3, 31.394042))
pocket2 = body.newObject("PartDesign::Pocket", "Pocket001")
pocket2.Profile = sketch3
pocket2.Length = 5

# Sketch on XY plane
sketch4 = body.newObject("Sketcher::SketchObject", "Sketch003")
sketch4.AttachmentSupport = (doc.getObject("XY_Plane"), [""])
sketch4.MapMode = "FlatFace"
sketch4.addGeometry(Part.Circle(Vector(65, -124, 0), Vector(0, 0, 1), 1.5), False)
sketch4.addGeometry(Part.Circle(Vector(27, -124, 0), Vector(0, 0, 1), 1.5), False)
sketch4.addGeometry(Part.Circle(Vector(27, -26, 0), Vector(0, 0, 1), 1.5), False)
sketch4.addGeometry(Part.Circle(Vector(65, -26, 0), Vector(0, 0, 1), 1.5), False)
sketch4.addGeometry(Part.Circle(Vector(-27, -26, 0), Vector(0, 0, 1), 1.5), False)
sketch4.addGeometry(Part.Circle(Vector(-65, -26, 0), Vector(0, 0, 1), 1.5), False)
sketch4.addGeometry(Part.Circle(Vector(-65, -124, 0), Vector(0, 0, 1), 1.5), False)
sketch4.addGeometry(Part.Circle(Vector(-27, -124, 0), Vector(0, 0, 1), 1.5), False)
sketch4.addConstraint(Sketcher.Constraint("Equal", 0, 1))
sketch4.addConstraint(Sketcher.Constraint("Equal", 1, 2))
sketch4.addConstraint(Sketcher.Constraint("Equal", 2, 3))
sketch4.addConstraint(Sketcher.Constraint("Equal", 3, 4))
sketch4.addConstraint(Sketcher.Constraint("Equal", 4, 5))
sketch4.addConstraint(Sketcher.Constraint("Equal", 5, 6))
sketch4.addConstraint(Sketcher.Constraint("Equal", 6, 7))
sketch4.addConstraint(Sketcher.Constraint("Symmetric", 2, 3, 4, 3, -2))
sketch4.addConstraint(Sketcher.Constraint("Symmetric", 3, 3, 5, 3, -2))
sketch4.addConstraint(Sketcher.Constraint("Symmetric", 0, 3, 6, 3, -2))
sketch4.addConstraint(Sketcher.Constraint("Symmetric", 1, 3, 7, 3, -2))
sketch4.addConstraint(Sketcher.Constraint("Horizontal", 0, 3, 1, 3))
sketch4.addConstraint(Sketcher.Constraint("Horizontal", 2, 3, 3, 3))
sketch4.addConstraint(Sketcher.Constraint("Vertical", 1, 3, 2, 3))
sketch4.addConstraint(Sketcher.Constraint("Vertical", 0, 3, 3, 3))
sketch4.addConstraint(Sketcher.Constraint("Diameter", 0, 3.0))
sketch4.addConstraint(Sketcher.Constraint("DistanceX", -1, 1, 0, 3, 65.0))
sketch4.addConstraint(Sketcher.Constraint("DistanceY", 0, 3, -1, 1, 124.0))
sketch4.addConstraint(Sketcher.Constraint("DistanceX", -1, 1, 1, 3, 27.0))
sketch4.addConstraint(Sketcher.Constraint("DistanceY", 2, 3, -1, 1, 26.0))
pocket3 = body.newObject("PartDesign::Pocket", "Pocket002")
pocket3.Profile = sketch4
pocket3.Type = "ThroughAll"

# Sketch on XY plane
sketch5 = body.newObject("Sketcher::SketchObject", "Sketch004")
sketch5.AttachmentSupport = (doc.getObject("XY_Plane"), [""])
sketch5.MapMode = "FlatFace"
sketch5.addGeometry(Part.Circle(Vector(25, -80.1, 0), Vector(0, 0, 1), 1.8), False)
sketch5.addGeometry(Part.Circle(Vector(25, -69.9, 0), Vector(0, 0, 1), 1.8), False)
sketch5.addGeometry(Part.Circle(Vector(-25, -80.1, 0), Vector(0, 0, 1), 1.8), False)
sketch5.addGeometry(Part.Circle(Vector(-25, -69.9, 0), Vector(0, 0, 1), 1.8), False)
sketch5.addGeometry(Part.LineSegment(Vector(-20.5, -64.8, 0), Vector(-20.5, -85.2, 0)), False)
sketch5.addGeometry(Part.LineSegment(Vector(-20.5, -85.2, 0), Vector(20.5, -85.2, 0)), False)
sketch5.addGeometry(Part.LineSegment(Vector(20.5, -85.2, 0), Vector(20.5, -64.8, 0)), False)
sketch5.addGeometry(Part.LineSegment(Vector(20.5, -64.8, 0), Vector(-20.5, -64.8, 0)), False)
sketch5.addConstraint(Sketcher.Constraint("Coincident", 4, 2, 5, 1))
sketch5.addConstraint(Sketcher.Constraint("Coincident", 5, 2, 6, 1))
sketch5.addConstraint(Sketcher.Constraint("Coincident", 6, 2, 7, 1))
sketch5.addConstraint(Sketcher.Constraint("Coincident", 7, 2, 4, 1))
sketch5.addConstraint(Sketcher.Constraint("Vertical", 4))
sketch5.addConstraint(Sketcher.Constraint("Horizontal", 5))
sketch5.addConstraint(Sketcher.Constraint("Vertical", 6))
sketch5.addConstraint(Sketcher.Constraint("Horizontal", 7))
sketch5.addConstraint(Sketcher.Constraint("Equal", 0, 1))
sketch5.addConstraint(Sketcher.Constraint("Equal", 1, 2))
sketch5.addConstraint(Sketcher.Constraint("Equal", 2, 3))
sketch5.addConstraint(Sketcher.Constraint("Symmetric", 0, 3, 2, 3, -2))
sketch5.addConstraint(Sketcher.Constraint("Symmetric", 1, 3, 3, 3, -2))
sketch5.addConstraint(Sketcher.Constraint("Vertical", 0, 3, 1, 3))
sketch5.addConstraint(Sketcher.Constraint("Diameter", 0, 3.5))
sketch5.addConstraint(Sketcher.Constraint("DistanceX", 5, 1, 5, 2, 41.0))
sketch5.addConstraint(Sketcher.Constraint("DistanceY", 4, 2, 4, 1, 20.5))
sketch5.addConstraint(Sketcher.Constraint("DistanceX", -1, 1, 0, 3, 25.0))
sketch5.addConstraint(Sketcher.Constraint("DistanceY", 0, 3, -1, 1, 80.1))
sketch5.addConstraint(Sketcher.Constraint("DistanceY", 1, 3, -1, 1, 69.9))
sketch5.addConstraint(Sketcher.Constraint("DistanceX", 4, 2, -1, 1, 20.5))
sketch5.addConstraint(Sketcher.Constraint("DistanceY", 4, 2, -1, 1, 85.25))
pocket4 = body.newObject("PartDesign::Pocket", "Pocket003")
pocket4.Profile = sketch5
pocket4.Type = "ThroughAll"
doc.recompute()

fillet = body.newObject("PartDesign::Fillet", "Fillet")
fillet.Base = (pocket4, edges_at(pocket4, [
    (70, -147.5, -2.5),
    (-70, -147.5, -2.5),
    (-70, -2.5, -2.5),
    (70, -2.5, -2.5),
]))
fillet.Radius = 10

doc.recompute()
